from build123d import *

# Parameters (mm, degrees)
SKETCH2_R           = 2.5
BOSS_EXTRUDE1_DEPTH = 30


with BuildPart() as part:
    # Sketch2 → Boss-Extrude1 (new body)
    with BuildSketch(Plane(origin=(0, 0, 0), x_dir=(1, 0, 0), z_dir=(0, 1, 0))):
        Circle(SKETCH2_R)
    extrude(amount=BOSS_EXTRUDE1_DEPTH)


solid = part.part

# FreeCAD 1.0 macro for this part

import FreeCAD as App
import Part
import Sketcher

V = App.Vector
Q = App.Units.Quantity

doc = App.newDocument("Part")
body = doc.addObject("PartDesign::Body", "Body")

# Sketch on XZ plane
sketch1 = body.newObject("Sketcher::SketchObject", "Sketch")
sketch1.AttachmentSupport = (doc.getObject("XZ_Plane"), [""])
sketch1.MapMode = "FlatFace"
sketch1.addGeometry(Part.Circle(V(0, 0, 0), V(0, 0, 1), 2.5), False)
sketch1.addConstraint(Sketcher.Constraint("Coincident", 0, 3, -1, 1))
sketch1.addConstraint(Sketcher.Constraint("Diameter", 0, Q("5 mm")))
pad1 = body.newObject("PartDesign::Pad", "Pad")
pad1.Profile = sketch1
pad1.Length = 30
pad1.Reversed = True

doc.recompute()
